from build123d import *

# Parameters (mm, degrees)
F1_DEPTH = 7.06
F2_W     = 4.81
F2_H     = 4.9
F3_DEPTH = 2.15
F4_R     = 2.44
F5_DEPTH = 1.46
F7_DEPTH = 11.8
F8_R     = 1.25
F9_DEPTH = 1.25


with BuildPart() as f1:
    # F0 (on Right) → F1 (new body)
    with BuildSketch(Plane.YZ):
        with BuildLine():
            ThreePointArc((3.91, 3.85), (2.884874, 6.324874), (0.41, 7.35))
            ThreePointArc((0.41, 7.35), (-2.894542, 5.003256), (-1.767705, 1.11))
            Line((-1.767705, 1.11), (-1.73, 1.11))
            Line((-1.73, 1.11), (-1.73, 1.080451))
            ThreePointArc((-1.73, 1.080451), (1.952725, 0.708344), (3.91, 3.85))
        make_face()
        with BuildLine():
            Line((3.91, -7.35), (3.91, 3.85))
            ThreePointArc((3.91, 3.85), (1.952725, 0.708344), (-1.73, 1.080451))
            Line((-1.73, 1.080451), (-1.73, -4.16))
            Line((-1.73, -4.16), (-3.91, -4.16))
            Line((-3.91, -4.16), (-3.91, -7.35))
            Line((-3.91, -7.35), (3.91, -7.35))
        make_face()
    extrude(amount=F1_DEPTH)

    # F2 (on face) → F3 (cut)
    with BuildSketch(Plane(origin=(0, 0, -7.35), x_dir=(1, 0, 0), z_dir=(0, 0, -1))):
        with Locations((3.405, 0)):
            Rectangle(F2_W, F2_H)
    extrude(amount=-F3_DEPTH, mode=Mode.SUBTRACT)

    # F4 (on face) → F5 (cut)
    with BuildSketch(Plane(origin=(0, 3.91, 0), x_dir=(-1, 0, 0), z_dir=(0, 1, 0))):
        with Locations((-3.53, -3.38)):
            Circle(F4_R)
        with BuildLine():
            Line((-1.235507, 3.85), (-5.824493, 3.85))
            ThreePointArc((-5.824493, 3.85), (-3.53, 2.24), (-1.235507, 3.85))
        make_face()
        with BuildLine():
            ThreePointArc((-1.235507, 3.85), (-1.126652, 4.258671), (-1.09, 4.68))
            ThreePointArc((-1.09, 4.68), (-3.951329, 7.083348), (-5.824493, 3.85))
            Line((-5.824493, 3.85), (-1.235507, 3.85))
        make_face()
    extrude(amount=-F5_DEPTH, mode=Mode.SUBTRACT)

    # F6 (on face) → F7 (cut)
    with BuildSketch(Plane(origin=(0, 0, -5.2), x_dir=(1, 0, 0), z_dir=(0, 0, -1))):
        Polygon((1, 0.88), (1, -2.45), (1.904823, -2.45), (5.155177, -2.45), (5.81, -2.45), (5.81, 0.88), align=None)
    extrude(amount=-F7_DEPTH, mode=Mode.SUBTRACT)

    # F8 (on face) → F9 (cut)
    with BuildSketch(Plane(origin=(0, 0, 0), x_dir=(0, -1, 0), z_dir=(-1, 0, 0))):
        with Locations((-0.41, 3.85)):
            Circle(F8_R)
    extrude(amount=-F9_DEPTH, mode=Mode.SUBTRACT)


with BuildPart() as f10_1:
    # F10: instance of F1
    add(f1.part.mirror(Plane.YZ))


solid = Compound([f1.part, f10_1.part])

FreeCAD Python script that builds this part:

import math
import FreeCAD as App
import Part
import Sketcher

V = App.Vector
Q = App.Units.Quantity

doc = App.newDocument("Part")
body = doc.addObject("PartDesign::Body", "Body")

sketch1 = body.newObject("Sketcher::SketchObject", "Sketch")
sketch1.AttachmentSupport = (doc.getObject("YZ_Plane"), [""])
sketch1.MapMode = "FlatFace"
sketch1.addGeometry(Part.ArcOfCircle(Part.Circle(V(0.41, 3.85, 0), V(0, 0, 1), 3.5), math.radians(0), math.radians(90)), False)
sketch1.addGeometry(Part.ArcOfCircle(Part.Circle(V(0.41, 3.85, 0), V(0, 0, 1), 3.5), math.radians(90), math.radians(232)), False)
sketch1.addGeometry(Part.LineSegment(V(-1.768, 1.11, 0), V(-1.73, 1.11, 0)), False)
sketch1.addGeometry(Part.LineSegment(V(-1.73, 1.11, 0), V(-1.73, -4.16, 0)), False)
sketch1.addGeometry(Part.LineSegment(V(-1.73, -4.16, 0), V(-3.91, -4.16, 0)), False)
sketch1.addGeometry(Part.LineSegment(V(-3.91, -4.16, 0), V(-3.91, -7.35, 0)), False)
sketch1.addGeometry(Part.LineSegment(V(-3.91, -7.35, 0), V(3.91, -7.35, 0)), False)
sketch1.addGeometry(Part.LineSegment(V(3.91, -7.35, 0), V(3.91, 3.85, 0)), False)
sketch1.addConstraint(Sketcher.Constraint("Tangent", 0, 2, 1, 1))
sketch1.addConstraint(Sketcher.Constraint("Coincident", 1, 2, 2, 1))
sketch1.addConstraint(Sketcher.Constraint("Coincident", 2, 2, 3, 1))
sketch1.addConstraint(Sketcher.Constraint("Coincident", 3, 2, 4, 1))
sketch1.addConstraint(Sketcher.Constraint("Coincident", 4, 2, 5, 1))
sketch1.addConstraint(Sketcher.Constraint("Coincident", 5, 2, 6, 1))
sketch1.addConstraint(Sketcher.Constraint("Coincident", 6, 2, 7, 1))
sketch1.addConstraint(Sketcher.Constraint("Tangent", 7, 2, 0, 1))
sketch1.addConstraint(Sketcher.Constraint("Horizontal", 2))
sketch1.addConstraint(Sketcher.Constraint("Vertical", 3))
sketch1.addConstraint(Sketcher.Constraint("Horizontal", 4))
sketch1.addConstraint(Sketcher.Constraint("Vertical", 5))
sketch1.addConstraint(Sketcher.Constraint("Horizontal", 6))
sketch1.addConstraint(Sketcher.Constraint("Vertical", 7))
sketch1.addConstraint(Sketcher.Constraint("Equal", 0, 1))
sketch1.addConstraint(Sketcher.Constraint("Vertical", 1, 3, 0, 2))
sketch1.addConstraint(Sketcher.Constraint("Radius", 0, Q("3.499999 mm")))
sketch1.addConstraint(Sketcher.Constraint("DistanceY", 7, 1, 7, 2, Q("11.2 mm")))
sketch1.addConstraint(Sketcher.Constraint("DistanceX", 4, 2, 4, 1, Q("2.18 mm")))
sketch1.addConstraint(Sketcher.Constraint("DistanceX", 6, 1, 6, 2, Q("7.82 mm")))
sketch1.addConstraint(Sketcher.Constraint("DistanceY", 3, 2, 3, 1, Q("5.27 mm")))
sketch1.addConstraint(Sketcher.Constraint("DistanceY", 5, 2, 5, 1, Q("3.19 mm")))
sketch1.addConstraint(Sketcher.Constraint("DistanceX", -1, 1, 0, 3, Q("0.410001 mm")))
sketch1.addConstraint(Sketcher.Constraint("DistanceY", -1, 1, 0, 3, Q("3.850001 mm")))
pad1 = body.newObject("PartDesign::Pad", "Pad")
pad1.Profile = sketch1
pad1.Length = 7.06

sketch2 = body.newObject("Sketcher::SketchObject", "Sketch001")
sketch2.AttachmentSupport = (doc.getObject("XY_Plane"), [""])
sketch2.MapMode = "FlatFace"
sketch2.AttachmentOffset = App.Placement(V(0, 0, -7.35), App.Rotation())
sketch2.addGeometry(Part.LineSegment(V(1, -2.5, 0), V(1, 2.5, 0)), False)
sketch2.addGeometry(Part.LineSegment(V(1, 2.5, 0), V(5.8, 2.5, 0)), False)
sketch2.addGeometry(Part.LineSegment(V(5.8, 2.5, 0), V(5.8, -2.5, 0)), False)
sketch2.addGeometry(Part.LineSegment(V(5.8, -2.5, 0), V(1, -2.5, 0)), False)
sketch2.addConstraint(Sketcher.Constraint("Coincident", 0, 2, 1, 1))
sketch2.addConstraint(Sketcher.Constraint("Coincident", 1, 2, 2, 1))
sketch2.addConstraint(Sketcher.Constraint("Coincident", 2, 2, 3, 1))
sketch2.addConstraint(Sketcher.Constraint("Coincident", 3, 2, 0, 1))
sketch2.addConstraint(Sketcher.Constraint("Vertical", 0))
sketch2.addConstraint(Sketcher.Constraint("Horizontal", 1))
sketch2.addConstraint(Sketcher.Constraint("Vertical", 2))
sketch2.addConstraint(Sketcher.Constraint("Horizontal", 3))
sketch2.addConstraint(Sketcher.Constraint("DistanceY", 0, 1, 0, 2, Q("4.9 mm")))
sketch2.addConstraint(Sketcher.Constraint("DistanceX", -1, 1, 0, 2, Q("1 mm")))
sketch2.addConstraint(Sketcher.Constraint("DistanceX", 1, 1, 1, 2, Q("4.81 mm")))
sketch2.addConstraint(Sketcher.Constraint("DistanceY", -1, 1, 0, 2, Q("2.45 mm")))
pocket1 = body.newObject("PartDesign::Pocket", "Pocket")
pocket1.Profile = sketch2
pocket1.Length = 2.15
pocket1.Reversed = True

sketch3 = body.newObject("Sketcher::SketchObject", "Sketch002")
sketch3.AttachmentSupport = (doc.getObject("XZ_Plane"), [""])
sketch3.MapMode = "FlatFace"
sketch3.AttachmentOffset = App.Placement(V(0, 0, -3.91), App.Rotation())
sketch3.addGeometry(Part.Circle(V(3.5, -3.4, 0), V(0, 0, 1), 2.4), False)
sketch3.addGeometry(Part.ArcOfCircle(Part.Circle(V(3.5, 4.7, 0), V(0, 0, 1), 2.4), math.radians(-160), math.radians(-20)), False)
sketch3.addGeometry(Part.ArcOfCircle(Part.Circle(V(3.5, 4.7, 0), V(0, 0, 1), 2.4), math.radians(180), math.radians(199.89)), False)
sketch3.addGeometry(Part.ArcOfCircle(Part.Circle(V(3.5, 4.7, 0), V(0, 0, 1), 2.4), math.radians(-20), math.radians(180)), False)
sketch3.addConstraint(Sketcher.Constraint("Tangent", 1, 1, 2, 2))
sketch3.addConstraint(Sketcher.Constraint("Tangent", 2, 1, 3, 2))
sketch3.addConstraint(Sketcher.Constraint("Tangent", 3, 1, 1, 2))
sketch3.addConstraint(Sketcher.Constraint("Equal", 0, 1))
sketch3.addConstraint(Sketcher.Constraint("Horizontal", 3, 3, 2, 1))
sketch3.addConstraint(Sketcher.Constraint("Horizontal", 1, 1, 3, 1))
sketch3.addConstraint(Sketcher.Constraint("Vertical", 0, 3, 1, 3))
sketch3.addConstraint(Sketcher.Constraint("Diameter", 0, Q("4.88 mm")))
sketch3.addConstraint(Sketcher.Constraint("DistanceX", -1, 1, 0, 3, Q("3.53 mm")))
sketch3.addConstraint(Sketcher.Constraint("DistanceY", 0, 3, -1, 1, Q("3.38 mm")))
sketch3.addConstraint(Sketcher.Constraint("DistanceY", -1, 1, 1, 3, Q("4.679999 mm")))
sketch3.addConstraint(Sketcher.Constraint("DistanceY", -1, 1, 1, 1, Q("3.85 mm")))
pocket2 = body.newObject("PartDesign::Pocket", "Pocket001")
pocket2.Profile = sketch3
pocket2.Length = 1.46
pocket2.Reversed = True

sketch4 = body.newObject("Sketcher::SketchObject", "Sketch003")
sketch4.AttachmentSupport = (doc.getObject("XY_Plane"), [""])
sketch4.MapMode = "FlatFace"
sketch4.AttachmentOffset = App.Placement(V(0, 0, -5.2), App.Rotation())
sketch4.addGeometry(Part.LineSegment(V(1, -0.9, 0), V(1, 2.5, 0)), False)
sketch4.addGeometry(Part.LineSegment(V(1, 2.5, 0), V(5.8, 2.5, 0)), False)
sketch4.addGeometry(Part.LineSegment(V(5.8, 2.5, 0), V(5.8, -0.9, 0)), False)
sketch4.addGeometry(Part.LineSegment(V(5.8, -0.9, 0), V(1, -0.9, 0)), False)
sketch4.addConstraint(Sketcher.Constraint("Coincident", 0, 2, 1, 1))
sketch4.addConstraint(Sketcher.Constraint("Coincident", 1, 2, 2, 1))
sketch4.addConstraint(Sketcher.Constraint("Coincident", 2, 2, 3, 1))
sketch4.addConstraint(Sketcher.Constraint("Coincident", 3, 2, 0, 1))
sketch4.addConstraint(Sketcher.Constraint("Vertical", 0))
sketch4.addConstraint(Sketcher.Constraint("Horizontal", 1))
sketch4.addConstraint(Sketcher.Constraint("Vertical", 2))
sketch4.addConstraint(Sketcher.Constraint("Horizontal", 3))
sketch4.addConstraint(Sketcher.Constraint("DistanceX", -1, 1, 0, 2, Q("1 mm")))
sketch4.addConstraint(Sketcher.Constraint("DistanceX", 1, 1, 1, 2, Q("4.81 mm")))
sketch4.addConstraint(Sketcher.Constraint("DistanceY", 0, 1, 0, 2, Q("3.33 mm")))
sketch4.addConstraint(Sketcher.Constraint("DistanceY", -1, 1, 0, 2, Q("2.45 mm")))
pocket3 = body.newObject("PartDesign::Pocket", "Pocket002")
pocket3.Profile = sketch4
pocket3.Length = 11.8
pocket3.Reversed = True

sketch5 = body.newObject("Sketcher::SketchObject", "Sketch004")
sketch5.AttachmentSupport = (doc.getObject("YZ_Plane"), [""])
sketch5.MapMode = "FlatFace"
sketch5.addGeometry(Part.Circle(V(0.4, 3.9, 0), V(0, 0, 1), 1.2), False)
sketch5.addConstraint(Sketcher.Constraint("Diameter", 0, Q("2.5 mm")))
sketch5.addConstraint(Sketcher.Constraint("DistanceX", -1, 1, 0, 3, Q("0.41 mm")))
sketch5.addConstraint(Sketcher.Constraint("DistanceY", -1, 1, 0, 3, Q("3.85 mm")))
pocket4 = body.newObject("PartDesign::Pocket", "Pocket003")
pocket4.Profile = sketch5
pocket4.Length = 1.25
pocket4.Reversed = True
body2 = doc.addObject("PartDesign::Body", "Body001")
doc.recompute()

mirroring = doc.addObject("Part::Mirroring", "Mirroring")
mirroring.Source = body
mirroring.Base = V(0, 0, 0)
mirroring.Normal = V(1, 0, 0)
body2.BaseFeature = mirroring
doc.recompute()
mirroring.Visibility = False

doc.recompute()
